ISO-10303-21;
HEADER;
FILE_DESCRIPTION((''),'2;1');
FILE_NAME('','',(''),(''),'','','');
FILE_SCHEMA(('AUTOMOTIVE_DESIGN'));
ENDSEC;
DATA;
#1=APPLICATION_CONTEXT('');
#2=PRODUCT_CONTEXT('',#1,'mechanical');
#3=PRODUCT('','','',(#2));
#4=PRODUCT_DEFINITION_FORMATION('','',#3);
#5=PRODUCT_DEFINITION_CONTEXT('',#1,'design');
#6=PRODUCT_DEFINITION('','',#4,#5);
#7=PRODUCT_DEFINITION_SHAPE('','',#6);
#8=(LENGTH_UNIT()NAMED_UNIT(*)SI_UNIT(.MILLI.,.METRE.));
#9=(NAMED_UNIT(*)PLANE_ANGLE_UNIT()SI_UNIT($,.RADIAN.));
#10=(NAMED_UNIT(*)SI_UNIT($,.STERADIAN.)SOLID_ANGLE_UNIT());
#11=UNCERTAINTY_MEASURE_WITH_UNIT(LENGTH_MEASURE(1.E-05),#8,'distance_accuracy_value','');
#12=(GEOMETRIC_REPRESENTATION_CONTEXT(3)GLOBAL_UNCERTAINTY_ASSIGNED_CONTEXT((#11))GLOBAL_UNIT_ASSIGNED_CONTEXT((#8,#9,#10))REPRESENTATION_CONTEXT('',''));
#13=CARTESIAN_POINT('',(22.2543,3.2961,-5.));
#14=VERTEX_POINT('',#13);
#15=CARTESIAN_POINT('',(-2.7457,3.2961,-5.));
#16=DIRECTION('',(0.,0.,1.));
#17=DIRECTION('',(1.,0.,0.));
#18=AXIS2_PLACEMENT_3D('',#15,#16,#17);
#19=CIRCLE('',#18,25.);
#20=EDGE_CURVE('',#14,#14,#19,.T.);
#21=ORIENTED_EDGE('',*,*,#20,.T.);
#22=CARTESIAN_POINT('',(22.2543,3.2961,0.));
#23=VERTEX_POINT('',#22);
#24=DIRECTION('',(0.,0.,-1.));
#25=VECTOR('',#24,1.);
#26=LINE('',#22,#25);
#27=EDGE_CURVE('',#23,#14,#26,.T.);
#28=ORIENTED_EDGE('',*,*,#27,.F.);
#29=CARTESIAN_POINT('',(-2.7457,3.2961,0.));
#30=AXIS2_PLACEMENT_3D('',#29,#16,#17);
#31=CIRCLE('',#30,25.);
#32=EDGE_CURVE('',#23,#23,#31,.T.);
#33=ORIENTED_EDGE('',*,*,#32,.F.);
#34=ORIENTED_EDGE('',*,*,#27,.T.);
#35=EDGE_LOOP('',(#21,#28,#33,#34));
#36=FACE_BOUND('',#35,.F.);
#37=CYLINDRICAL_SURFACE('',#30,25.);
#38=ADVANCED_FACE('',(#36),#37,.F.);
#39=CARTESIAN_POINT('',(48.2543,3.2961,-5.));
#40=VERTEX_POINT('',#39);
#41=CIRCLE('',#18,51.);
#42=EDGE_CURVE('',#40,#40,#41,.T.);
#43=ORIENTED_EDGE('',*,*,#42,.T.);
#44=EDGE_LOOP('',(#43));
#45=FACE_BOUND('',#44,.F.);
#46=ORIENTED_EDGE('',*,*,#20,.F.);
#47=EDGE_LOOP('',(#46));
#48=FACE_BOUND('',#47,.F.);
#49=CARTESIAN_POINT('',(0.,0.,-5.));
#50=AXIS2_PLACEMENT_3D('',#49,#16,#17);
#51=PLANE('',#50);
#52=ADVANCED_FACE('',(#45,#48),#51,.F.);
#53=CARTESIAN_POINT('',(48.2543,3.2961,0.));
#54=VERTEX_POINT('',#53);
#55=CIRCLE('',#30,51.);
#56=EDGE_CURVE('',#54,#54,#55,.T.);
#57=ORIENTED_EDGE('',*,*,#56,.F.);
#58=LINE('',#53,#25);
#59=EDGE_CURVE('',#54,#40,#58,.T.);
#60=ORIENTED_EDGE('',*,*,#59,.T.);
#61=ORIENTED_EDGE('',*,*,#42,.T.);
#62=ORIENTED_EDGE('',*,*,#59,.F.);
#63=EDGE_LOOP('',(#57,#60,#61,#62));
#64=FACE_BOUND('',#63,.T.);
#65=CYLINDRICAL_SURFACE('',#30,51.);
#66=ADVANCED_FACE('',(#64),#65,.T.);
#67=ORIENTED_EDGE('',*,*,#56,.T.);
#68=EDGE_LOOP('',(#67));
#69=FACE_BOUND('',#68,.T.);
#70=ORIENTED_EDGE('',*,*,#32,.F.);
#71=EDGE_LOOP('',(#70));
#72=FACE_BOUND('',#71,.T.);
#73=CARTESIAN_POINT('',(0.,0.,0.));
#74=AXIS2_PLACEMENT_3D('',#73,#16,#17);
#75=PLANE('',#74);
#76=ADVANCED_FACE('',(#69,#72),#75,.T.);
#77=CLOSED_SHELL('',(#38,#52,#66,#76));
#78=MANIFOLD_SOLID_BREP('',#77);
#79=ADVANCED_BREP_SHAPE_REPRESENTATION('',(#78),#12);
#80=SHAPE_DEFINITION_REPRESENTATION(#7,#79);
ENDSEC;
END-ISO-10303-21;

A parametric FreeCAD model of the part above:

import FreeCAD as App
import Part
import Sketcher

V = App.Vector

doc = App.newDocument("Part")
body = doc.addObject("PartDesign::Body", "Body")

sketch1 = body.newObject("Sketcher::SketchObject", "Sketch")
sketch1.AttachmentSupport = (doc.getObject("XY_Plane"), [""])
sketch1.MapMode = "FlatFace"
sketch1.addGeometry([
    Part.Circle(V(-3, 3, 0), V(0, 0, 1), 51),
    Part.Circle(V(-3, 3, 0), V(0, 0, 1), 25),
], False)
sketch1.addConstraint([
    Sketcher.Constraint("Coincident", 1, 3, 0, 3),
    Sketcher.Constraint("Diameter", 0, 102.0),
    Sketcher.Constraint("Diameter", 1, 50.0),
    Sketcher.Constraint("DistanceY", -1, 1, 0, 3, 3.296),
    Sketcher.Constraint("DistanceX", 0, 3, -1, 1, 2.7457),
])
pad1 = body.newObject("PartDesign::Pad", "Pad")
pad1.Profile = sketch1
pad1.Length = 5
pad1.Reversed = True

doc.recompute()
